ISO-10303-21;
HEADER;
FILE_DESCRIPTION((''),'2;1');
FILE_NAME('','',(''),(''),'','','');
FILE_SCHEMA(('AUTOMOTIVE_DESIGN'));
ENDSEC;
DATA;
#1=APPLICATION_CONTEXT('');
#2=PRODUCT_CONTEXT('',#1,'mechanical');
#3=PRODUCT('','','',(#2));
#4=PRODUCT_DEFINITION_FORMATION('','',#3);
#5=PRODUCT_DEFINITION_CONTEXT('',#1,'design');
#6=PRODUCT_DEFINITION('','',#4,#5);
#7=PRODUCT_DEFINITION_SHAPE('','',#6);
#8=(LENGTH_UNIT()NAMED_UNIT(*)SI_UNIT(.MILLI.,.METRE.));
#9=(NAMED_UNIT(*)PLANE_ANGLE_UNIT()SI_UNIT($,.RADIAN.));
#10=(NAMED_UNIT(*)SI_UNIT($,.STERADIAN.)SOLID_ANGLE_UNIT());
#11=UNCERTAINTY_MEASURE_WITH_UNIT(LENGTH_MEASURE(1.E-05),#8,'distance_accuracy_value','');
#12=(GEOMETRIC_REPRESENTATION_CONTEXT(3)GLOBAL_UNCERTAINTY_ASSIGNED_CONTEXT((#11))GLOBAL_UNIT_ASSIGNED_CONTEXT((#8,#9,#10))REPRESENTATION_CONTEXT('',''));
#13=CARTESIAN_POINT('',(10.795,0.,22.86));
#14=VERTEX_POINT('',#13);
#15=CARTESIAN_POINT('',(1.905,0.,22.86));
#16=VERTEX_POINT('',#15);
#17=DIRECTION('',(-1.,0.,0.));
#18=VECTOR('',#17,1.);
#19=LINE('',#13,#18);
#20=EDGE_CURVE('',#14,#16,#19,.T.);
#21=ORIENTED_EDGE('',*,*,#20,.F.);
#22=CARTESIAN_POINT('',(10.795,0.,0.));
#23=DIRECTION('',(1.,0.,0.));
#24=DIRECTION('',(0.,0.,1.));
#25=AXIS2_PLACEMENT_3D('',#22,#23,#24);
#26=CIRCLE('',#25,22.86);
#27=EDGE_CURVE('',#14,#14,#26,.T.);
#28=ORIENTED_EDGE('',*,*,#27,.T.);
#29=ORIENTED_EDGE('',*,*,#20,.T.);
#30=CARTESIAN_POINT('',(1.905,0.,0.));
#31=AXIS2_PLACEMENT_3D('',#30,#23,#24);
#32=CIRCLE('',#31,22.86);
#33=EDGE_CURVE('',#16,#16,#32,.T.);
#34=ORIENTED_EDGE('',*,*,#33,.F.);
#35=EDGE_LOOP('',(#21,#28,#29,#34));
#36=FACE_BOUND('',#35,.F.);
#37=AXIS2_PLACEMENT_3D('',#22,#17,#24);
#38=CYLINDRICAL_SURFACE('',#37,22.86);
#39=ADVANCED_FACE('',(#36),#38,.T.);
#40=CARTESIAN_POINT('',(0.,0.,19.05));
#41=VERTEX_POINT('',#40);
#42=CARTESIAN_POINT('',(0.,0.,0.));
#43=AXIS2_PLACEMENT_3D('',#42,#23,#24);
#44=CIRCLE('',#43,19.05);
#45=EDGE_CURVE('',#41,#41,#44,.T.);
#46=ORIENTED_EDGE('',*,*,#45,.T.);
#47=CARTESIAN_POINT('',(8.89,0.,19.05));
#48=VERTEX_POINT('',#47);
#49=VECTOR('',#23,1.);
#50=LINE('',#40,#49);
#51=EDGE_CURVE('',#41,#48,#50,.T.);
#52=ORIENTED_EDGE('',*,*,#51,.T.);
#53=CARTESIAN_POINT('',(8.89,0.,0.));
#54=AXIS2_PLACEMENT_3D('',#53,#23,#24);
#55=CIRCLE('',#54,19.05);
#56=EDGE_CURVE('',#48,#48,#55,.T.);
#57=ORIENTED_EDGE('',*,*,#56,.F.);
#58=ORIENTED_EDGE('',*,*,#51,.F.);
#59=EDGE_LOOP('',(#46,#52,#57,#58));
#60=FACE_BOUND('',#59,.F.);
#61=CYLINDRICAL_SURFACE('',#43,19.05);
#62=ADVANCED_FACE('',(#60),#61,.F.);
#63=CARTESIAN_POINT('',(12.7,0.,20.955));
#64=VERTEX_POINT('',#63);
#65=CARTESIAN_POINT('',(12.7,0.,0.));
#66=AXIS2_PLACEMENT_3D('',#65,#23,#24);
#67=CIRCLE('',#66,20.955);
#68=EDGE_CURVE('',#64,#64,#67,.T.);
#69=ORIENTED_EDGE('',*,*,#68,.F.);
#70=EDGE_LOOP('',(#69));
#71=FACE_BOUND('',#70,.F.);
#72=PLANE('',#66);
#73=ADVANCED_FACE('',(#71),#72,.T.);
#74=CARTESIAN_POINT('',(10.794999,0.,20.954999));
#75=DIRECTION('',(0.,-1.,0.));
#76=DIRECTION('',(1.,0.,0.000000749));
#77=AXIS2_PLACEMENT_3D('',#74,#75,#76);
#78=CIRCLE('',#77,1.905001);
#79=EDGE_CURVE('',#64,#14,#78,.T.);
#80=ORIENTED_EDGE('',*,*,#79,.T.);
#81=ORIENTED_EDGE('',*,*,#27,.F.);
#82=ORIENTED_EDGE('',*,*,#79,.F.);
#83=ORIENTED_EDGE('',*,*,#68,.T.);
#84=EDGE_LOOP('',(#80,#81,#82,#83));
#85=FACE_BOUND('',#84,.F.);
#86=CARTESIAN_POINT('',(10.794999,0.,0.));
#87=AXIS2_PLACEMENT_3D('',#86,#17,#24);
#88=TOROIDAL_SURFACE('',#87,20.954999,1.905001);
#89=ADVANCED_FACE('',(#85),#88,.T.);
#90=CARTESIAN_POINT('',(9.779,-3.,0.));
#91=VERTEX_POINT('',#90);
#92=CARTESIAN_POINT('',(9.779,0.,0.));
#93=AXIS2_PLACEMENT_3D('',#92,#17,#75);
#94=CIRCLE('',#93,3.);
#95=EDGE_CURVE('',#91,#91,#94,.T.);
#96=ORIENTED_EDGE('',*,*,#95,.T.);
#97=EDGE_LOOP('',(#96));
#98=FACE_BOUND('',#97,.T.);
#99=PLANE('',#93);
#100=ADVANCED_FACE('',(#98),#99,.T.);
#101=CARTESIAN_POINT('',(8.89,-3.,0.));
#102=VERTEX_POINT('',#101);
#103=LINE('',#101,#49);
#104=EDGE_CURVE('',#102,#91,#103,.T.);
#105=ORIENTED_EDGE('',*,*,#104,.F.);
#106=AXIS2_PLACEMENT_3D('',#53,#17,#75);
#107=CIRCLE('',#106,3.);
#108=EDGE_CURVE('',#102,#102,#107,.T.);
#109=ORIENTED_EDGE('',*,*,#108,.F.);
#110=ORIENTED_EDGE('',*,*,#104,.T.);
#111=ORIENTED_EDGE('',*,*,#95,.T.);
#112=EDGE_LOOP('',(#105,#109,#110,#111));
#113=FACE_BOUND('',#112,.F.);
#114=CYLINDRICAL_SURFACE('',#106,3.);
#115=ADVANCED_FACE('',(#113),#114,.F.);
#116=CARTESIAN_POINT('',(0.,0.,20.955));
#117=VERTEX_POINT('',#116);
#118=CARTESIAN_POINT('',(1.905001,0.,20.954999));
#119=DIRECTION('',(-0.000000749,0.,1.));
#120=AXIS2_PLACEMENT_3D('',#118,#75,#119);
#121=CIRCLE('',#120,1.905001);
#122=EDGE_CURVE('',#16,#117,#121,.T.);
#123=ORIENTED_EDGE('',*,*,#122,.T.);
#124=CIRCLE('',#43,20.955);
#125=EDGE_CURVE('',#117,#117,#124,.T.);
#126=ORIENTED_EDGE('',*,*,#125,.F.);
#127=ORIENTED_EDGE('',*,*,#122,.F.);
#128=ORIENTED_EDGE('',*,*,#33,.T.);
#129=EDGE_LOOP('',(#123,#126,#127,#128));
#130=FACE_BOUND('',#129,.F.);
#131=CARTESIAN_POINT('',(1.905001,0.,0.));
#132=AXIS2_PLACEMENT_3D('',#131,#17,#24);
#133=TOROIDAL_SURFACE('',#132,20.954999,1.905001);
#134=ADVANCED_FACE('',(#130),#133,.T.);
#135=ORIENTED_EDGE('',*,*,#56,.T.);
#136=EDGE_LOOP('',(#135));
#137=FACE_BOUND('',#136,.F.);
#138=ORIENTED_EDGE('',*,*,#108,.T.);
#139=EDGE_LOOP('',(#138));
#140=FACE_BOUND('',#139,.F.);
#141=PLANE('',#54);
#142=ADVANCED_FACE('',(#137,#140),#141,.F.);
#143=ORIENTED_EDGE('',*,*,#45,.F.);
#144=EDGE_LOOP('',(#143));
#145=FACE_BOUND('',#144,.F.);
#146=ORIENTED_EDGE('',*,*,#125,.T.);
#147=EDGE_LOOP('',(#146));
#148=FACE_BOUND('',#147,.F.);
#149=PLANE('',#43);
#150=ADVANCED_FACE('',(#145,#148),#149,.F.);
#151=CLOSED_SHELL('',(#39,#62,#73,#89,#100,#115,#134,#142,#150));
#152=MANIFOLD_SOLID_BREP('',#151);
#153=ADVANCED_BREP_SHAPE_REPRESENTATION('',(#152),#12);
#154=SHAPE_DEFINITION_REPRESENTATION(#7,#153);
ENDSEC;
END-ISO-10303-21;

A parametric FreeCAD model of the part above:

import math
import FreeCAD as App
import Part
import Sketcher
Q = App.Units.Quantity

doc = App.newDocument("Part")
body = doc.addObject("PartDesign::Body", "Body")

# Sketch on XZ plane
sketch1 = doc.addObject("Sketcher::SketchObject", "Sketch")
body.addObject(sketch1)
sketch1.AttachmentSupport = (doc.XZ_Plane, [""])
sketch1.MapMode = "FlatFace"
sketch1.addGeometry(Part.LineSegment(App.Vector(0, 20.955, 0), App.Vector(0, 19.05, 0)), False)
sketch1.addGeometry(Part.LineSegment(App.Vector(0, 19.05, 0), App.Vector(8.89, 19.05, 0)), False)
sketch1.addGeometry(Part.LineSegment(App.Vector(8.89, 19.05, 0), App.Vector(8.89, 0, 0)), False)
sketch1.addGeometry(Part.LineSegment(App.Vector(8.89, 0, 0), App.Vector(12.7, 0, 0)), False)
sketch1.addGeometry(Part.LineSegment(App.Vector(12.7, 0, 0), App.Vector(12.7, 20.955, 0)), False)
sketch1.addGeometry(Part.ArcOfCircle(Part.Circle(App.Vector(10.794999, 20.954999, 0), App.Vector(0, 0, 1), 1.905001), math.radians(0.000043), math.radians(89.999957)), False)
sketch1.addGeometry(Part.LineSegment(App.Vector(10.795, 22.86, 0), App.Vector(1.905, 22.86, 0)), False)
sketch1.addGeometry(Part.ArcOfCircle(Part.Circle(App.Vector(1.905001, 20.954999, 0), App.Vector(0, 0, 1), 1.905001), math.radians(90.000043), math.radians(179.999957)), False)
sketch1.addConstraint(Sketcher.Constraint("Coincident", 0, 2, 1, 1))
sketch1.addConstraint(Sketcher.Constraint("Coincident", 1, 2, 2, 1))
sketch1.addConstraint(Sketcher.Constraint("Coincident", 2, 2, 3, 1))
sketch1.addConstraint(Sketcher.Constraint("Coincident", 3, 2, 4, 1))
sketch1.addConstraint(Sketcher.Constraint("Tangent", 4, 2, 5, 1))
sketch1.addConstraint(Sketcher.Constraint("Tangent", 5, 2, 6, 1))
sketch1.addConstraint(Sketcher.Constraint("Tangent", 6, 2, 7, 1))
sketch1.addConstraint(Sketcher.Constraint("Tangent", 7, 2, 0, 1))
sketch1.addConstraint(Sketcher.Constraint("Vertical", 0))
sketch1.addConstraint(Sketcher.Constraint("Horizontal", 1))
sketch1.addConstraint(Sketcher.Constraint("Vertical", 2))
sketch1.addConstraint(Sketcher.Constraint("Horizontal", 3))
sketch1.addConstraint(Sketcher.Constraint("Vertical", 4))
sketch1.addConstraint(Sketcher.Constraint("Horizontal", 6))
sketch1.addConstraint(Sketcher.Constraint("Equal", 5, 7))
sketch1.addConstraint(Sketcher.Constraint("PointOnObject", 0, 2, -2))
sketch1.addConstraint(Sketcher.Constraint("PointOnObject", 2, 2, -1))
sketch1.addConstraint(Sketcher.Constraint("Equal", 1, 6))
sketch1.addConstraint(Sketcher.Constraint("Radius", 5, Q("0.0750001 in")))
sketch1.addConstraint(Sketcher.Constraint("DistanceX", 1, 1, 1, 2, Q("0.35 in")))
sketch1.addConstraint(Sketcher.Constraint("DistanceY", 2, 2, 2, 1, Q("0.75 in")))
sketch1.addConstraint(Sketcher.Constraint("DistanceY", -1, 1, 5, 2, Q("0.9 in")))
revolution = doc.addObject("PartDesign::Revolution", "Revolution")
body.addObject(revolution)
revolution.Profile = sketch1
revolution.ReferenceAxis = (sketch1, ["H_Axis"])
revolution.Angle = 360

# Sketch on YZ plane
sketch2 = doc.addObject("Sketcher::SketchObject", "Sketch001")
body.addObject(sketch2)
sketch2.AttachmentSupport = (doc.YZ_Plane, [""])
sketch2.MapMode = "FlatFace"
sketch2.AttachmentOffset = App.Placement(App.Vector(0, 0, 0.35 * 25.4), App.Rotation())
sketch2.addGeometry(Part.Circle(App.Vector(0, 0, 0), App.Vector(0, 0, 1), 3), False)
sketch2.addConstraint(Sketcher.Constraint("Coincident", 0, 3, -1, 1))
sketch2.addConstraint(Sketcher.Constraint("Diameter", 0, Q("6 mm")))
pocket1 = doc.addObject("PartDesign::Pocket", "Pocket")
body.addObject(pocket1)
pocket1.Profile = sketch2
pocket1.Length = Q("0.035 in")
pocket1.Reversed = True

doc.recompute()
